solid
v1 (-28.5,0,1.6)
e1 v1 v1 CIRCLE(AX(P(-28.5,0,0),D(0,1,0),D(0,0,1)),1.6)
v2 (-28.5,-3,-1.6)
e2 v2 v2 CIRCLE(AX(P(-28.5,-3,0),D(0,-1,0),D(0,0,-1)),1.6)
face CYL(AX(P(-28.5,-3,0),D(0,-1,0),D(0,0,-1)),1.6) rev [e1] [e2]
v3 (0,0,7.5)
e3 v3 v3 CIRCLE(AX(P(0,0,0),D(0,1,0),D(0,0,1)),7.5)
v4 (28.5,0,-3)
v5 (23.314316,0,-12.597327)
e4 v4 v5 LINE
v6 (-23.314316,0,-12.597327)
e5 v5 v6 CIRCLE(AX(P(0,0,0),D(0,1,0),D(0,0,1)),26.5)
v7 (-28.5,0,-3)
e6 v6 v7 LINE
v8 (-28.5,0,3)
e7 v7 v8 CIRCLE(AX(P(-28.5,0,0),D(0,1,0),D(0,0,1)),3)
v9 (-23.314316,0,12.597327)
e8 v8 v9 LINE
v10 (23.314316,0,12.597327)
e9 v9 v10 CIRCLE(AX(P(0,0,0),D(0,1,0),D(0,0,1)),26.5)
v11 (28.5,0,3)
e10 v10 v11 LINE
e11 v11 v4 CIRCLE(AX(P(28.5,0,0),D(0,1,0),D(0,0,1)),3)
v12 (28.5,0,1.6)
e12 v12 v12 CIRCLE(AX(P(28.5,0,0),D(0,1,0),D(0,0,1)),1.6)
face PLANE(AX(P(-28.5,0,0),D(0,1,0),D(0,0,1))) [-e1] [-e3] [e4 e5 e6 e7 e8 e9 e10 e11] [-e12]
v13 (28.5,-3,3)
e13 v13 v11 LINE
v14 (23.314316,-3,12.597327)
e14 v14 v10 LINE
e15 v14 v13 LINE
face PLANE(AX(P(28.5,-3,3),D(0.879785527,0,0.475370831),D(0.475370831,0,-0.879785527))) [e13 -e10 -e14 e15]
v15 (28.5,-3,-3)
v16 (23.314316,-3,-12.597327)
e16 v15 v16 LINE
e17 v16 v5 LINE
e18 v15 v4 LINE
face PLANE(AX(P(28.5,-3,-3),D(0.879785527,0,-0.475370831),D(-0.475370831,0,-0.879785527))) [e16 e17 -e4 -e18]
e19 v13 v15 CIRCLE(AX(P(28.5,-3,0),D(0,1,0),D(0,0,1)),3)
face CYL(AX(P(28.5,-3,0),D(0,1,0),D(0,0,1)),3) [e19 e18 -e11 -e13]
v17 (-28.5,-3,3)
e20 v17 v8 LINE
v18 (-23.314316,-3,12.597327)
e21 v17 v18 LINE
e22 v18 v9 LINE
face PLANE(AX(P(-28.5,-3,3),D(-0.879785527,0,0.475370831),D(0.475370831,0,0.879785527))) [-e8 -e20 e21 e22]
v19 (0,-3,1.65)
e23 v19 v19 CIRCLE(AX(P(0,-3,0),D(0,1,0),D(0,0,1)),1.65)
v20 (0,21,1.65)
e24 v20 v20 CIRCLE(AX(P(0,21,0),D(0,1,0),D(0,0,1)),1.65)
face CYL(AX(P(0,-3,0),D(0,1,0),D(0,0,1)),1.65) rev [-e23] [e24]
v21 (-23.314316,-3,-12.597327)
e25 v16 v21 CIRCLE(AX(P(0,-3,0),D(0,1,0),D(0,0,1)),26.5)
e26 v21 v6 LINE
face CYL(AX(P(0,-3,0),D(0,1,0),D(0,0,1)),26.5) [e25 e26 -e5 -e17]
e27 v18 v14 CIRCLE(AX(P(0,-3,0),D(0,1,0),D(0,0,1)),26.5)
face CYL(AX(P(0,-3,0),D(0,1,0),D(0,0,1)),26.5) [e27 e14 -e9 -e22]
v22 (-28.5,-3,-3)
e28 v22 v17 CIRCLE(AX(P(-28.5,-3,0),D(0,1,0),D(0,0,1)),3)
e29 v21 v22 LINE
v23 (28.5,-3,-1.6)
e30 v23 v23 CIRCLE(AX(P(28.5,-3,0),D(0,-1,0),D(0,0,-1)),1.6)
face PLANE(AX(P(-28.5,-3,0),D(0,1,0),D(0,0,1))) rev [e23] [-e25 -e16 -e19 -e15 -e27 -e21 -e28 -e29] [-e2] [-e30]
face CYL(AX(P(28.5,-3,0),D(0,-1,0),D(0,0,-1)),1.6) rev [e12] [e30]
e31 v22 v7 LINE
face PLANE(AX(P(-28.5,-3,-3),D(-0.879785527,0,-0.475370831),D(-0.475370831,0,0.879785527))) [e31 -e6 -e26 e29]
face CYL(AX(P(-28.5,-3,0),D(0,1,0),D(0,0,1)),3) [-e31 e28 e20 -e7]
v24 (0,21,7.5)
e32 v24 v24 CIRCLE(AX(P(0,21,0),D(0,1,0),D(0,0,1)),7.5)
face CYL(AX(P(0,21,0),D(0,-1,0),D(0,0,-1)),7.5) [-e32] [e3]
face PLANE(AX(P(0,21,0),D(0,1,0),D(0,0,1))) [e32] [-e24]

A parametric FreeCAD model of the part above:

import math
import FreeCAD as App
import Part
import Sketcher

V = App.Vector
Q = App.Units.Quantity

doc = App.newDocument("Part")
params = doc.addObject("Spreadsheet::Sheet", "Params")
for row, (alias, value) in enumerate([
    ("sketch1_radius", "3 mm"),
    ("sketch1_radius2", "26.5 mm"),
    ("pad1_length", "3 mm"),
    ("sketch2_diameter", "15 mm"),
    ("pad2_length", "21 mm"),
    ("sketch3_diameter", "3.2 mm"),
    ("hole_diameter", "3.2 mm"),
    ("hole_depth", "3 mm"),
    ("sketch4_diameter", "3.3 mm"),
], start=1):
    params.set(f"A{row}", alias)
    params.set(f"B{row}", "=" + value)
    params.setAlias(f"B{row}", alias)

body = doc.addObject("PartDesign::Body", "Body")

sketch1 = body.newObject("Sketcher::SketchObject", "Sketch")
sketch1.AttachmentSupport = (doc.getObject("XZ_Plane"), [""])
sketch1.MapMode = "FlatFace"
sketch1.addGeometry([
    Part.LineSegment(V(-23.314316, -12.597327, 0), V(-28.5, -3, 0)),
    Part.ArcOfCircle(Part.Circle(V(-28.5, 0, 0), V(0, 0, 1), 3), math.radians(90), math.radians(270)),
    Part.LineSegment(V(-28.5, 3, 0), V(-23.314316, 12.597327, 0)),
    Part.ArcOfCircle(Part.Circle(V(0, 0, 0), V(0, 0, 1), 26.5), math.radians(28.383498), math.radians(151.616502)),
    Part.LineSegment(V(23.314316, 12.597327, 0), V(28.5, 3, 0)),
    Part.ArcOfCircle(Part.Circle(V(28.5, 0, 0), V(0, 0, 1), 3), math.radians(-90), math.radians(90)),
    Part.LineSegment(V(28.5, -3, 0), V(23.314316, -12.597327, 0)),
    Part.ArcOfCircle(Part.Circle(V(0, 0, 0), V(0, 0, 1), 26.5), math.radians(-151.616502), math.radians(-28.383498)),
], False)
sketch1.addConstraint([
    Sketcher.Constraint("Coincident", 0, 2, 1, 2),
    Sketcher.Constraint("Coincident", 1, 1, 2, 1),
    Sketcher.Constraint("Tangent", 2, 2, 3, 2),
    Sketcher.Constraint("Tangent", 3, 1, 4, 1),
    Sketcher.Constraint("Coincident", 4, 2, 5, 2),
    Sketcher.Constraint("Coincident", 5, 1, 6, 1),
    Sketcher.Constraint("Tangent", 6, 2, 7, 2),
    Sketcher.Constraint("Tangent", 7, 1, 0, 1),
    Sketcher.Constraint("Coincident", 3, 3, -1, 1),
    Sketcher.Constraint("Coincident", 7, 3, -1, 1),
    Sketcher.Constraint("Equal", 1, 5),
    Sketcher.Constraint("Equal", 3, 7),
    Sketcher.Constraint("Symmetric", 1, 3, 5, 3, -1, 1),
    Sketcher.Constraint("Symmetric", 1, 1, 4, 2, -2),
    Sketcher.Constraint("Parallel", 0, 4),
    Sketcher.Constraint("Parallel", 2, 6),
    Sketcher.Constraint("Vertical", 1, 3, 0, 2),
    Sketcher.Constraint("Radius", 1, Q("3 mm")),
    Sketcher.Constraint("Radius", 3, Q("26.5 mm")),
    Sketcher.Constraint("DistanceX", 1, 3, 5, 3, Q("57 mm")),
])
sketch1.setExpression("Constraints[17]", "Params.sketch1_radius")
sketch1.setExpression("Constraints[18]", "Params.sketch1_radius2")
pad1 = body.newObject("PartDesign::Pad", "Pad")
pad1.Profile = sketch1
pad1.setExpression("Length", "Params.pad1_length")

sketch2 = body.newObject("Sketcher::SketchObject", "Sketch001")
sketch2.AttachmentSupport = (doc.getObject("XZ_Plane"), [""])
sketch2.MapMode = "FlatFace"
sketch2.addGeometry(Part.Circle(V(0, 0, 0), V(0, 0, 1), 7.5), False)
sketch2.addConstraint([
    Sketcher.Constraint("Coincident", 0, 3, -1, 1),
    Sketcher.Constraint("Diameter", 0, Q("15 mm")),
])
sketch2.setExpression("Constraints[1]", "Params.sketch2_diameter")
pad2 = body.newObject("PartDesign::Pad", "Pad001")
pad2.Profile = sketch2
pad2.setExpression("Length", "Params.pad2_length")
pad2.Reversed = True

sketch3 = body.newObject("Sketcher::SketchObject", "Sketch002")
sketch3.AttachmentSupport = (doc.getObject("XZ_Plane"), [""])
sketch3.MapMode = "FlatFace"
sketch3.AttachmentOffset = App.Placement(V(0, 0, 3), App.Rotation())
sketch3.addGeometry([
    Part.Circle(V(28.5, 0, 0), V(0, 0, 1), 1.6),
    Part.Circle(V(-28.5, 0, 0), V(0, 0, 1), 1.6),
], False)
sketch3.addConstraint([
    Sketcher.Constraint("Equal", 0, 1),
    Sketcher.Constraint("Symmetric", 0, 3, 1, 3, -1, 1),
    Sketcher.Constraint("PointOnObject", 0, 3, -1),
    Sketcher.Constraint("Diameter", 0, Q("3.2 mm")),
    Sketcher.Constraint("DistanceX", 1, 3, 0, 3, Q("57 mm")),
])
sketch3.setExpression("Constraints[3]", "Params.sketch3_diameter")
doc.recompute()
hole = body.newObject("PartDesign::Hole", "Hole")
hole.Profile = sketch3
hole.ThreadType = "None"
hole.setExpression("Diameter", "Params.hole_diameter")
hole.DepthType = "Dimension"
hole.setExpression("Depth", "Params.hole_depth")
hole.DrillPoint = "Flat"

sketch4 = body.newObject("Sketcher::SketchObject", "Sketch003")
sketch4.AttachmentSupport = (doc.getObject("XZ_Plane"), [""])
sketch4.MapMode = "FlatFace"
sketch4.AttachmentOffset = App.Placement(V(0, 0, -21), App.Rotation())
sketch4.addGeometry(Part.Circle(V(0, 0, 0), V(0, 0, 1), 1.65), False)
sketch4.addConstraint([
    Sketcher.Constraint("Coincident", 0, 3, -1, 1),
    Sketcher.Constraint("Diameter", 0, Q("3.3 mm")),
])
sketch4.setExpression("Constraints[1]", "Params.sketch4_diameter")
pocket1 = body.newObject("PartDesign::Pocket", "Pocket")
pocket1.Profile = sketch4
pocket1.Type = "ThroughAll"
pocket1.Reversed = True

doc.recompute()
